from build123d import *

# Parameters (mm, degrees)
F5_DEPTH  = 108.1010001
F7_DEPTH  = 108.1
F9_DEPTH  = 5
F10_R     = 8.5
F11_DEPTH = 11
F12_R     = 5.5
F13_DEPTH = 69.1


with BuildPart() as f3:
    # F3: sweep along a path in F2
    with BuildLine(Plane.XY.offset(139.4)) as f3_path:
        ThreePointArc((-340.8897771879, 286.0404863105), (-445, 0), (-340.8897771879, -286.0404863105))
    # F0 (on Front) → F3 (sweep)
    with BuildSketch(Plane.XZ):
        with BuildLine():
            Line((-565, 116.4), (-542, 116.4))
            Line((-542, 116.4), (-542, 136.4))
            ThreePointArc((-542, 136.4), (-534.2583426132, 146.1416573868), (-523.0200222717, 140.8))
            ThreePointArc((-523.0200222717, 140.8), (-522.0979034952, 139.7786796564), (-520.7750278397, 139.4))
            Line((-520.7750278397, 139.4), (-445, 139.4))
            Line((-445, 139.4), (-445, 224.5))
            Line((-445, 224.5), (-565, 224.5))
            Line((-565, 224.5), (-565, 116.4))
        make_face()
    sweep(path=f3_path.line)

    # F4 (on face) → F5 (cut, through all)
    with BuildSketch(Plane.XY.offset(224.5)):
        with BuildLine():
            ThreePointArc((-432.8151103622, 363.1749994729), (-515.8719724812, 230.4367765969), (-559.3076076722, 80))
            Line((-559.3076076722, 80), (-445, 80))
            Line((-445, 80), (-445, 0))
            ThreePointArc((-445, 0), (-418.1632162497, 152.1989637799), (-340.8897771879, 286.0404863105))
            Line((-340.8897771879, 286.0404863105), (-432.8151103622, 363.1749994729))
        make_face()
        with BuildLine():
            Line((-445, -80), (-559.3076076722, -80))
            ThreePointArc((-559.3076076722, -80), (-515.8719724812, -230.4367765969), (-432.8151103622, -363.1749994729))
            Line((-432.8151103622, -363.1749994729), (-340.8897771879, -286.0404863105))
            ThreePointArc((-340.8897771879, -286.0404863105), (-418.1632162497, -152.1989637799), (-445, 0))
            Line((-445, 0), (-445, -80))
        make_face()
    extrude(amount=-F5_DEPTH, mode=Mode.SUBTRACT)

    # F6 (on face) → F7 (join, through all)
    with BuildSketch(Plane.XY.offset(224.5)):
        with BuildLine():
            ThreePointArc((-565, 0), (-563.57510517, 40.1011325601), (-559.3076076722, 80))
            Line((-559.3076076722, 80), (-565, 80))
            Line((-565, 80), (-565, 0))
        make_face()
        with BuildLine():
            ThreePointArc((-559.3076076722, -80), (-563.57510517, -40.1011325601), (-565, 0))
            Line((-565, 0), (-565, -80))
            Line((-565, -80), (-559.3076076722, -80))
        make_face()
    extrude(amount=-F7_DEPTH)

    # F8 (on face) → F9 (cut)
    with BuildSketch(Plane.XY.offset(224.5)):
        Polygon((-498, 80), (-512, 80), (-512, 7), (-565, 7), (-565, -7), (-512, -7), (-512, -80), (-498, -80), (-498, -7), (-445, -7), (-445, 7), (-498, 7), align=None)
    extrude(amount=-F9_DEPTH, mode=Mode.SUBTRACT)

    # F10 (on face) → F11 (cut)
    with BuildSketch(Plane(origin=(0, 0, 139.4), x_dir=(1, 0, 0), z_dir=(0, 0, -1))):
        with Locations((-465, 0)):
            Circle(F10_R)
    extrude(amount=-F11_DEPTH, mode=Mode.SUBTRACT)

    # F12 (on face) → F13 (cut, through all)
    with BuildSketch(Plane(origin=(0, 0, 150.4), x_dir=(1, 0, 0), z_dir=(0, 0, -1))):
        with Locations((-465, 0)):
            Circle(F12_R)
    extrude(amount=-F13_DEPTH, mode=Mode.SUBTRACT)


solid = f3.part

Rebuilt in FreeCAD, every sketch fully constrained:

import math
import FreeCAD as App
import Part
import Sketcher
from FreeCAD import Vector
Q = App.Units.Quantity

doc = App.newDocument("Part")
body = doc.addObject("PartDesign::Body", "Body")

sketch1 = body.newObject("Sketcher::SketchObject", "Sketch")
sketch1.AttachmentSupport = (doc.getObject("XZ_Plane"), [""])
sketch1.MapMode = "FlatFace"
sketch1.addGeometry([
    Part.LineSegment(Vector(-565, 116.4, 0), Vector(-542, 116.4, 0)),
    Part.LineSegment(Vector(-542, 116.4, 0), Vector(-542, 136.4, 0)),
    Part.ArcOfCircle(Part.Circle(Vector(-532, 136.4, 0), Vector(0, 0, 1), 10), math.radians(26), math.radians(180)),
    Part.ArcOfCircle(Part.Circle(Vector(-520.8, 141.9, 0), Vector(0, 0, 1), 2.5), math.radians(-154), math.radians(-90)),
    Part.LineSegment(Vector(-520.8, 139.4, 0), Vector(-445, 139.4, 0)),
    Part.LineSegment(Vector(-445, 139.4, 0), Vector(-445, 224.5, 0)),
    Part.LineSegment(Vector(-445, 224.5, 0), Vector(-565, 224.5, 0)),
    Part.LineSegment(Vector(-565, 224.5, 0), Vector(-565, 116.4, 0)),
], False)
sketch1.addConstraint([
    Sketcher.Constraint("Coincident", 0, 2, 1, 1),
    Sketcher.Constraint("Tangent", 1, 2, 2, 2),
    Sketcher.Constraint("Tangent", 2, 1, 3, 1),
    Sketcher.Constraint("Tangent", 3, 2, 4, 1),
    Sketcher.Constraint("Coincident", 4, 2, 5, 1),
    Sketcher.Constraint("Coincident", 5, 2, 6, 1),
    Sketcher.Constraint("Coincident", 6, 2, 7, 1),
    Sketcher.Constraint("Coincident", 7, 2, 0, 1),
    Sketcher.Constraint("Horizontal", 0),
    Sketcher.Constraint("Vertical", 1),
    Sketcher.Constraint("Horizontal", 4),
    Sketcher.Constraint("Vertical", 5),
    Sketcher.Constraint("Horizontal", 6),
    Sketcher.Constraint("Vertical", 7),
    Sketcher.Constraint("Radius", 2, 10.0),
    Sketcher.Constraint("Radius", 3, 2.5),
    Sketcher.Constraint("DistanceX", 0, 1, 0, 2, 23.0),
    Sketcher.Constraint("DistanceX", 6, 2, 6, 1, 120.0),
    Sketcher.Constraint("DistanceY", 1, 1, 1, 2, 20.0),
    Sketcher.Constraint("DistanceY", 5, 1, 5, 2, 85.1),
    Sketcher.Constraint("DistanceY", 7, 2, 7, 1, 108.1),
    Sketcher.Constraint("DistanceX", 2, 3, -1, 1, 532.0),
    Sketcher.Constraint("DistanceY", -1, 1, 2, 3, 136.4),
])

sketch2 = body.newObject("Sketcher::SketchObject", "Sketch001")
sketch2.AttachmentSupport = (doc.getObject("XY_Plane"), [""])
sketch2.MapMode = "FlatFace"
sketch2.AttachmentOffset = App.Placement(Vector(0, 0, 139.4), App.Rotation())
sketch2.addGeometry(Part.ArcOfCircle(Part.Circle(Vector(0, 0, 0), Vector(0, 0, 1), 445), math.radians(140), math.radians(220)), False)
sketch2.addConstraint([
    Sketcher.Constraint("Coincident", 0, 3, -1, 1),
    Sketcher.Constraint("Radius", 0, 445.0),
    Sketcher.Constraint("DistanceX", 0, 1, -1, 1, 340.889777),
    Sketcher.Constraint("DistanceX", 0, 2, -1, 1, 340.889777),
])
doc.recompute()

additivepipe = body.newObject("PartDesign::AdditivePipe", "AdditivePipe")
additivepipe.Profile = sketch1
additivepipe.Spine = (sketch2, ["Edge1"])

sketch3 = body.newObject("Sketcher::SketchObject", "Sketch002")
sketch3.AttachmentSupport = (doc.getObject("XY_Plane"), [""])
sketch3.MapMode = "FlatFace"
sketch3.AttachmentOffset = App.Placement(Vector(0, 0, 224.5), App.Rotation())
sketch3.addGeometry([
    Part.ArcOfCircle(Part.Circle(Vector(0, 0, 0), Vector(0, 0, 1), 565), math.radians(140), math.radians(172)),
    Part.LineSegment(Vector(-559, 80, 0), Vector(-445, 80, 0)),
    Part.LineSegment(Vector(-445, 80, 0), Vector(-445, 0, 0)),
    Part.ArcOfCircle(Part.Circle(Vector(0, 0, 0), Vector(0, 0, 1), 445), math.radians(140), math.radians(180)),
    Part.LineSegment(Vector(-341, 286, 0), Vector(-433, 363, 0)),
    Part.LineSegment(Vector(-445, -80, 0), Vector(-559, -80, 0)),
    Part.ArcOfCircle(Part.Circle(Vector(0, 0, 0), Vector(0, 0, 1), 565), math.radians(-172), math.radians(-140)),
    Part.LineSegment(Vector(-433, -363, 0), Vector(-341, -286, 0)),
    Part.ArcOfCircle(Part.Circle(Vector(0, 0, 0), Vector(0, 0, 1), 445), math.radians(180), math.radians(220)),
    Part.LineSegment(Vector(-445, 0, 0), Vector(-445, -80, 0)),
], False)
sketch3.addConstraint([
    Sketcher.Constraint("Coincident", 0, 2, 1, 1),
    Sketcher.Constraint("Coincident", 1, 2, 2, 1),
    Sketcher.Constraint("Tangent", 2, 2, 3, 2),
    Sketcher.Constraint("Coincident", 3, 1, 4, 1),
    Sketcher.Constraint("Coincident", 4, 2, 0, 1),
    Sketcher.Constraint("Coincident", 5, 2, 6, 1),
    Sketcher.Constraint("Coincident", 6, 2, 7, 1),
    Sketcher.Constraint("Coincident", 7, 2, 8, 2),
    Sketcher.Constraint("Tangent", 8, 1, 9, 1),
    Sketcher.Constraint("Coincident", 9, 2, 5, 1),
    Sketcher.Constraint("Horizontal", 1),
    Sketcher.Constraint("Vertical", 2),
    Sketcher.Constraint("Horizontal", 5),
    Sketcher.Constraint("Vertical", 9),
    Sketcher.Constraint("Coincident", 0, 3, -1, 1),
    Sketcher.Constraint("Coincident", 3, 3, -1, 1),
    Sketcher.Constraint("Coincident", 6, 3, -1, 1),
    Sketcher.Constraint("Coincident", 8, 3, -1, 1),
    Sketcher.Constraint("Equal", 0, 6),
    Sketcher.Constraint("Equal", 3, 8),
    Sketcher.Constraint("Vertical", 4, 2, 6, 2),
    Sketcher.Constraint("Vertical", 3, 1, 7, 2),
    Sketcher.Constraint("Equal", 1, 5),
    Sketcher.Constraint("Radius", 0, 565.0),
    Sketcher.Constraint("Radius", 3, 445.0),
    Sketcher.Constraint("DistanceY", 2, 2, 2, 1, 80.0),
    Sketcher.Constraint("Angle", 4, Q("140 deg")),
    Sketcher.Constraint("DistanceY", -1, 1, 4, 2, 363.174999),
])
pocket1 = body.newObject("PartDesign::Pocket", "Pocket")
pocket1.Profile = sketch3
pocket1.Type = "ThroughAll"

sketch4 = body.newObject("Sketcher::SketchObject", "Sketch003")
sketch4.AttachmentSupport = (doc.getObject("XY_Plane"), [""])
sketch4.MapMode = "FlatFace"
sketch4.AttachmentOffset = App.Placement(Vector(0, 0, 224.5), App.Rotation())
sketch4.addGeometry([
    Part.ArcOfCircle(Part.Circle(Vector(0, 0, 0), Vector(0, 0, 1), 565), math.radians(171.86), math.radians(180)),
    Part.LineSegment(Vector(-559, 80, 0), Vector(-565, 80, 0)),
    Part.LineSegment(Vector(-565, 80, 0), Vector(-565, 0, 0)),
    Part.ArcOfCircle(Part.Circle(Vector(0, 0, 0), Vector(0, 0, 1), 565), math.radians(-180), math.radians(-171.86)),
    Part.LineSegment(Vector(-565, 0, 0), Vector(-565, -80, 0)),
    Part.LineSegment(Vector(-565, -80, 0), Vector(-559, -80, 0)),
], False)
sketch4.addConstraint([
    Sketcher.Constraint("Coincident", 0, 1, 1, 1),
    Sketcher.Constraint("Coincident", 1, 2, 2, 1),
    Sketcher.Constraint("Tangent", 2, 2, 0, 2),
    Sketcher.Constraint("Tangent", 3, 1, 4, 1),
    Sketcher.Constraint("Coincident", 4, 2, 5, 1),
    Sketcher.Constraint("Coincident", 5, 2, 3, 2),
    Sketcher.Constraint("Horizontal", 1),
    Sketcher.Constraint("Vertical", 2),
    Sketcher.Constraint("Vertical", 4),
    Sketcher.Constraint("Horizontal", 5),
    Sketcher.Constraint("Coincident", 0, 3, -1, 1),
    Sketcher.Constraint("Coincident", 3, 3, -1, 1),
    Sketcher.Constraint("Equal", 0, 3),
    Sketcher.Constraint("Equal", 1, 5),
    Sketcher.Constraint("Radius", 0, 565.0),
    Sketcher.Constraint("DistanceY", 2, 2, 2, 1, 80.0),
])
pad1 = body.newObject("PartDesign::Pad", "Pad")
pad1.Profile = sketch4
pad1.Type = "UpToLast"
pad1.Reversed = True

sketch5 = body.newObject("Sketcher::SketchObject", "Sketch004")
sketch5.AttachmentSupport = (doc.getObject("XY_Plane"), [""])
sketch5.MapMode = "FlatFace"
sketch5.AttachmentOffset = App.Placement(Vector(0, 0, 224.5), App.Rotation())
sketch5.addGeometry([
    Part.LineSegment(Vector(-498, 80, 0), Vector(-512, 80, 0)),
    Part.LineSegment(Vector(-512, 80, 0), Vector(-512, 7, 0)),
    Part.LineSegment(Vector(-512, 7, 0), Vector(-565, 7, 0)),
    Part.LineSegment(Vector(-565, 7, 0), Vector(-565, -7, 0)),
    Part.LineSegment(Vector(-565, -7, 0), Vector(-512, -7, 0)),
    Part.LineSegment(Vector(-512, -7, 0), Vector(-512, -80, 0)),
    Part.LineSegment(Vector(-512, -80, 0), Vector(-498, -80, 0)),
    Part.LineSegment(Vector(-498, -80, 0), Vector(-498, -7, 0)),
    Part.LineSegment(Vector(-498, -7, 0), Vector(-445, -7, 0)),
    Part.LineSegment(Vector(-445, -7, 0), Vector(-445, 7, 0)),
    Part.LineSegment(Vector(-445, 7, 0), Vector(-498, 7, 0)),
    Part.LineSegment(Vector(-498, 7, 0), Vector(-498, 80, 0)),
], False)
sketch5.addConstraint([
    Sketcher.Constraint("Coincident", 0, 2, 1, 1),
    Sketcher.Constraint("Coincident", 1, 2, 2, 1),
    Sketcher.Constraint("Coincident", 2, 2, 3, 1),
    Sketcher.Constraint("Coincident", 3, 2, 4, 1),
    Sketcher.Constraint("Coincident", 4, 2, 5, 1),
    Sketcher.Constraint("Coincident", 5, 2, 6, 1),
    Sketcher.Constraint("Coincident", 6, 2, 7, 1),
    Sketcher.Constraint("Coincident", 7, 2, 8, 1),
    Sketcher.Constraint("Coincident", 8, 2, 9, 1),
    Sketcher.Constraint("Coincident", 9, 2, 10, 1),
    Sketcher.Constraint("Coincident", 10, 2, 11, 1),
    Sketcher.Constraint("Coincident", 11, 2, 0, 1),
    Sketcher.Constraint("Horizontal", 0),
    Sketcher.Constraint("Vertical", 1),
    Sketcher.Constraint("Horizontal", 2),
    Sketcher.Constraint("Vertical", 3),
    Sketcher.Constraint("Horizontal", 4),
    Sketcher.Constraint("Vertical", 5),
    Sketcher.Constraint("Horizontal", 6),
    Sketcher.Constraint("Vertical", 7),
    Sketcher.Constraint("Horizontal", 8),
    Sketcher.Constraint("Vertical", 9),
    Sketcher.Constraint("Horizontal", 10),
    Sketcher.Constraint("Vertical", 11),
    Sketcher.Constraint("Symmetric", 1, 2, 4, 2, -1),
    Sketcher.Constraint("Symmetric", 7, 2, 10, 2, -1),
    Sketcher.Constraint("Horizontal", 4, 2, 7, 2),
    Sketcher.Constraint("Equal", 4, 8),
    Sketcher.Constraint("Equal", 6, 3),
    Sketcher.Constraint("Equal", 1, 5),
    Sketcher.Constraint("DistanceX", 0, 2, 0, 1, 14.0),
    Sketcher.Constraint("DistanceX", 2, 2, 2, 1, 53.0),
    Sketcher.Constraint("DistanceY", 1, 2, 1, 1, 73.0),
    Sketcher.Constraint("DistanceX", 0, 2, -1, 1, 512.0),
])
pocket2 = body.newObject("PartDesign::Pocket", "Pocket001")
pocket2.Profile = sketch5
pocket2.Length = 5

sketch6 = body.newObject("Sketcher::SketchObject", "Sketch005")
sketch6.AttachmentSupport = (doc.getObject("XY_Plane"), [""])
sketch6.MapMode = "FlatFace"
sketch6.AttachmentOffset = App.Placement(Vector(0, 0, 139.4), App.Rotation())
sketch6.addGeometry(Part.Circle(Vector(-465, 0, 0), Vector(0, 0, 1), 8), False)
sketch6.addConstraint([
    Sketcher.Constraint("PointOnObject", 0, 3, -1),
    Sketcher.Constraint("Diameter", 0, 17.0),
    Sketcher.Constraint("DistanceX", 0, 3, -1, 1, 465.0),
])
pocket3 = body.newObject("PartDesign::Pocket", "Pocket002")
pocket3.Profile = sketch6
pocket3.Length = 11
pocket3.Reversed = True

sketch7 = body.newObject("Sketcher::SketchObject", "Sketch006")
sketch7.AttachmentSupport = (doc.getObject("XY_Plane"), [""])
sketch7.MapMode = "FlatFace"
sketch7.AttachmentOffset = App.Placement(Vector(0, 0, 150.4), App.Rotation())
sketch7.addGeometry(Part.Circle(Vector(-465, 0, 0), Vector(0, 0, 1), 6), False)
sketch7.addConstraint([
    Sketcher.Constraint("PointOnObject", 0, 3, -1),
    Sketcher.Constraint("Diameter", 0, 11.0),
    Sketcher.Constraint("DistanceX", 0, 3, -1, 1, 465.0),
])
pocket4 = body.newObject("PartDesign::Pocket", "Pocket003")
pocket4.Profile = sketch7
pocket4.Type = "ThroughAll"
pocket4.Reversed = True

doc.recompute()
